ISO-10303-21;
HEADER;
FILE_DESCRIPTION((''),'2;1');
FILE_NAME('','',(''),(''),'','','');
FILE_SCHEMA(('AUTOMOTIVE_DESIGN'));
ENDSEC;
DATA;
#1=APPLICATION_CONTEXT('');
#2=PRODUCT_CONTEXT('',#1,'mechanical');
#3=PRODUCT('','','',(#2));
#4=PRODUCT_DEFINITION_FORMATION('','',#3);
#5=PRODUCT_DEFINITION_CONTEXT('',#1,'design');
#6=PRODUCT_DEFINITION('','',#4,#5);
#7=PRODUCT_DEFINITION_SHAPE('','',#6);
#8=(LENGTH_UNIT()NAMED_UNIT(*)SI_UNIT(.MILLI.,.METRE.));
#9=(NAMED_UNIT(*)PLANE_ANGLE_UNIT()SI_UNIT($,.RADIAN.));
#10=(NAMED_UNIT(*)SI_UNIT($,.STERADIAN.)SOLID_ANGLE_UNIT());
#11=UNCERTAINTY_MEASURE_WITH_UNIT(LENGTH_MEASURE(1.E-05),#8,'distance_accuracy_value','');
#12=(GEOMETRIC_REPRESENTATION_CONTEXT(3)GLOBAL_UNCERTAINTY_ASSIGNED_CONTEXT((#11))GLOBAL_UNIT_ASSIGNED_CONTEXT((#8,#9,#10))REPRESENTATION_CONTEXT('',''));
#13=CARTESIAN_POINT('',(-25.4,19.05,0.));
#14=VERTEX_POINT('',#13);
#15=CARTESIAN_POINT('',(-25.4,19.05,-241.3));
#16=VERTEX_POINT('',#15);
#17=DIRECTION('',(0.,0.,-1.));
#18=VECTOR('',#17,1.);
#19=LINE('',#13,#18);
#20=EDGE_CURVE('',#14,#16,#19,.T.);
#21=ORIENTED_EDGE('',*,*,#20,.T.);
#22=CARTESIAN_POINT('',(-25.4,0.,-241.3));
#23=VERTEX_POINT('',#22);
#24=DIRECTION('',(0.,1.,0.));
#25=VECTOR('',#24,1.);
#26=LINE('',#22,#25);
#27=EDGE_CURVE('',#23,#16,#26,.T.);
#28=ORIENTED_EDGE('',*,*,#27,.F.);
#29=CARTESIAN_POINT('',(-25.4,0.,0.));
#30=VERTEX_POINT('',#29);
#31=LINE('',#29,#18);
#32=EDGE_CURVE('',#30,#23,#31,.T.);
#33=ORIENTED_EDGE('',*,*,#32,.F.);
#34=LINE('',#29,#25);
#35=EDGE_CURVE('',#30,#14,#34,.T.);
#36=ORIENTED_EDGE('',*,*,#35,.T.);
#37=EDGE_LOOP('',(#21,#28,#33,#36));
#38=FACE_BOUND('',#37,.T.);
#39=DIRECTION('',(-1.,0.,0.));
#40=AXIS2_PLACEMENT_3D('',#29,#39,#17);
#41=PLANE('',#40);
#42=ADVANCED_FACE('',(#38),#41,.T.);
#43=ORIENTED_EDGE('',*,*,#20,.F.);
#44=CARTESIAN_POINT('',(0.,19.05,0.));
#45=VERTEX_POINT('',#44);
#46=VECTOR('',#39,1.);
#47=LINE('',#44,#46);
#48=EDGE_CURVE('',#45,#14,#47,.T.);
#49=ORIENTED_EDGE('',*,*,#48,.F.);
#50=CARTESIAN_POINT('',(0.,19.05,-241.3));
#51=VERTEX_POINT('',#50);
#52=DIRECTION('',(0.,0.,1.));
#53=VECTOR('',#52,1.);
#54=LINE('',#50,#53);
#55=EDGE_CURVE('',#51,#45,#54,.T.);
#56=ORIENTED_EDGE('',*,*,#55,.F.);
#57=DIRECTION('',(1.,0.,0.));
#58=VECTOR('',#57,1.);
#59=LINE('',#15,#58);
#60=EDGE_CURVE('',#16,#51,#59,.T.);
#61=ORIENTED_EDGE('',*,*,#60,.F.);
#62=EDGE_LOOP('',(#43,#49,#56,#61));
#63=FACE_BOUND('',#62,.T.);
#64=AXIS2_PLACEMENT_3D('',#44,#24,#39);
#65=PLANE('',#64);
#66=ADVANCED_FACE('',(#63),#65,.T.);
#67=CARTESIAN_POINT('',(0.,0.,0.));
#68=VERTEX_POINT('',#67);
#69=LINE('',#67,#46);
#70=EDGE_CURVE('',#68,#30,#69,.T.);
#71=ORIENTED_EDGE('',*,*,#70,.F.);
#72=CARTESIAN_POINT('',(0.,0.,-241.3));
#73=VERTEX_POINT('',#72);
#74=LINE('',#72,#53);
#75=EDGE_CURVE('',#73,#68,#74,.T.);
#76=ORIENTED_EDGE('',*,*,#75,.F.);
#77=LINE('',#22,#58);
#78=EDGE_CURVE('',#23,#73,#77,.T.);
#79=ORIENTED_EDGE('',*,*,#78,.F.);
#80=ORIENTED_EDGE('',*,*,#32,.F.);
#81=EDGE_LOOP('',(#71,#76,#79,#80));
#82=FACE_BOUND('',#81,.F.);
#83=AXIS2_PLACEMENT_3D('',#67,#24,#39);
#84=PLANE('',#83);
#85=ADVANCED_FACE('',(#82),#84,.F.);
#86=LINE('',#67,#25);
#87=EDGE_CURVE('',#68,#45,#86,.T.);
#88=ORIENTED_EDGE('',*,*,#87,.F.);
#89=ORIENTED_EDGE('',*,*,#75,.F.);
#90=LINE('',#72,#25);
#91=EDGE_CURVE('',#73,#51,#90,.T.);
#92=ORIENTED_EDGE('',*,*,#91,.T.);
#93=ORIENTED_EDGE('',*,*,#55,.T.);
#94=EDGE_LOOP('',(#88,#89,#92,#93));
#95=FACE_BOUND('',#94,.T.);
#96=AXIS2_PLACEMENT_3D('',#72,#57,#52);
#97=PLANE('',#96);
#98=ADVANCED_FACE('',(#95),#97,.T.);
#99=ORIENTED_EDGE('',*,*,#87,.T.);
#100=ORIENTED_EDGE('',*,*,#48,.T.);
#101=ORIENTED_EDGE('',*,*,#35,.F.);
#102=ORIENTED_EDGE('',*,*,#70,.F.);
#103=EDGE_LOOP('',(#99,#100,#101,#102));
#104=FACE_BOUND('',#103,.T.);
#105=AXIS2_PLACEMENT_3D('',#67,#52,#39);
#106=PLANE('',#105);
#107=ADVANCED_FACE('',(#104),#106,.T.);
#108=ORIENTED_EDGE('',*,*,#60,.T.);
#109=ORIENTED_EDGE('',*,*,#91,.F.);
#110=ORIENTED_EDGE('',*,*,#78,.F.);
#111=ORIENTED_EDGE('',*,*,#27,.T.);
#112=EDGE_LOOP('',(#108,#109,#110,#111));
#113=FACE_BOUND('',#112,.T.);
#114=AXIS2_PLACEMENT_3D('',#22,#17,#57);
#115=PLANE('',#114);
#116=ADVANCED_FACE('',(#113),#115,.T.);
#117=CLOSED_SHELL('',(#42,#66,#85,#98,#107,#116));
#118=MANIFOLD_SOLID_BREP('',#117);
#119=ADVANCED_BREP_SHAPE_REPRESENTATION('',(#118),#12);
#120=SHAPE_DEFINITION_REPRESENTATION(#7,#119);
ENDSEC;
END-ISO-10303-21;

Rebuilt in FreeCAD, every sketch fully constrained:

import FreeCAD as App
import Part
import Sketcher
from FreeCAD import Vector
Q = App.Units.Quantity


def add_polygon(sketch, points):
    """Adds a closed chain of lines whose ends are joined by coincident constraints."""
    first, n = sketch.GeometryCount, len(points)
    for a, b in zip(points, points[1:] + points[:1]):
        sketch.addGeometry(Part.LineSegment(App.Vector(*a, 0), App.Vector(*b, 0)), False)
    for i in range(n):
        sketch.addConstraint(Sketcher.Constraint("Coincident", first + i, 2, first + (i + 1) % n, 1))

doc = App.newDocument("Part")
body = doc.addObject("PartDesign::Body", "Body")

sketch1 = body.newObject("Sketcher::SketchObject", "Sketch")
sketch1.AttachmentSupport = (doc.getObject("XZ_Plane"), [""])
sketch1.MapMode = "FlatFace"
add_polygon(sketch1, [(-25, 0), (0, 0), (0, -241), (-25, -241)])
sketch1.addConstraint(Sketcher.Constraint("Horizontal", 0))
sketch1.addConstraint(Sketcher.Constraint("Vertical", 1))
sketch1.addConstraint(Sketcher.Constraint("Horizontal", 2))
sketch1.addConstraint(Sketcher.Constraint("Vertical", 3))
sketch1.addConstraint(Sketcher.Constraint("Coincident", 0, 2, -1, 1))
sketch1.addConstraint(Sketcher.Constraint("DistanceX", 0, 1, 0, 2, Q("1 in")))
sketch1.addConstraint(Sketcher.Constraint("DistanceY", 1, 2, 1, 1, Q("9.5 in")))
pad1 = body.newObject("PartDesign::Pad", "Pad")
pad1.Profile = sketch1
pad1.Length = Q("0.75 in")
pad1.Reversed = True

doc.recompute()
